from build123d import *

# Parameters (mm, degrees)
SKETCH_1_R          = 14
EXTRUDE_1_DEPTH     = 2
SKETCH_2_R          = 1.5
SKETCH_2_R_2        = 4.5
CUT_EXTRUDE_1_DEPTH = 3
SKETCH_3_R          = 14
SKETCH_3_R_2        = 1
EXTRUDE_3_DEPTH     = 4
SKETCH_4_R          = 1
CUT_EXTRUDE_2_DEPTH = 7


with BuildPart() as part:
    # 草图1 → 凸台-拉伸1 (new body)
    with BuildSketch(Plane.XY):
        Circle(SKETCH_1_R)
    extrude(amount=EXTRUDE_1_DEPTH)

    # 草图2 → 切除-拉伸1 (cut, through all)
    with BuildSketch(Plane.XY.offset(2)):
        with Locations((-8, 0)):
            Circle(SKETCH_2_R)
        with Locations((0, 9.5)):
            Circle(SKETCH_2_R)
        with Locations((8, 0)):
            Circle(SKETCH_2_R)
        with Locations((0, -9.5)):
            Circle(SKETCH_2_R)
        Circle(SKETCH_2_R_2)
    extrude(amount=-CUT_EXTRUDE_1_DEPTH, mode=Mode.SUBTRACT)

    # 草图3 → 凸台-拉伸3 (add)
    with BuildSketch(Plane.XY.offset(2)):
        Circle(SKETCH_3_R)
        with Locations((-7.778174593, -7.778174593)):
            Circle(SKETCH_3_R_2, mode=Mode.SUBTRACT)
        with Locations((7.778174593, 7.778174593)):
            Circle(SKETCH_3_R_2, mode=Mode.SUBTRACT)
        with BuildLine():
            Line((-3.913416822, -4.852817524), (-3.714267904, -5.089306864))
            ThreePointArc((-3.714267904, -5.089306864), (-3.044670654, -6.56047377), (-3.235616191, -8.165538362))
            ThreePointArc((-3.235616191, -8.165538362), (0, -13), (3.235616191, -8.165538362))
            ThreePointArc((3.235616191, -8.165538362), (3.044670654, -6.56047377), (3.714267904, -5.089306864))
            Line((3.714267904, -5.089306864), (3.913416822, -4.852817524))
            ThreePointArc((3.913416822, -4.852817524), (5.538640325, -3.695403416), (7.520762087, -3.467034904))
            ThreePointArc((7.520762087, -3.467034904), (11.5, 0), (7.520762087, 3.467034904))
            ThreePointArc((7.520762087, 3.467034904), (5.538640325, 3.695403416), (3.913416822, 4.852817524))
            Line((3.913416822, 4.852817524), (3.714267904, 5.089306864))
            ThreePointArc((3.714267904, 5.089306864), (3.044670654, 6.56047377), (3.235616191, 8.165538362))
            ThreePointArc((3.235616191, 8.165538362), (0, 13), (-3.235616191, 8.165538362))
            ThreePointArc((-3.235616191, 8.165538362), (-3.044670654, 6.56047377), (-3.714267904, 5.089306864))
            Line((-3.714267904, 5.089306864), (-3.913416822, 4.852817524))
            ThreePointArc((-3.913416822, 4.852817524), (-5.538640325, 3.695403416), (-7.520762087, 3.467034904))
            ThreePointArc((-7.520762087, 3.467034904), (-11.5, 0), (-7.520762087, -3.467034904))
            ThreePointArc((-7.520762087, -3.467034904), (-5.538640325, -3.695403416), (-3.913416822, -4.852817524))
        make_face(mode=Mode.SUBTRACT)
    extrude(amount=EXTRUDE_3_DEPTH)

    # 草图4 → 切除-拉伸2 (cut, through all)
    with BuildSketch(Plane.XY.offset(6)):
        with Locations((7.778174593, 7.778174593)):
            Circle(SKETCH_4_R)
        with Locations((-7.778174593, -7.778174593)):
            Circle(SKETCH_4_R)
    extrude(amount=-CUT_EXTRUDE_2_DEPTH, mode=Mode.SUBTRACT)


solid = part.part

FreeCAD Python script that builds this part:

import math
import FreeCAD as App
import Part
import Sketcher

doc = App.newDocument("Part")
body = doc.addObject("PartDesign::Body", "Body")

# Sketch on XY plane
sketch1 = body.newObject("Sketcher::SketchObject", "Sketch")
sketch1.AttachmentSupport = (doc.getObject("XY_Plane"), [""])
sketch1.MapMode = "FlatFace"
sketch1.addGeometry(Part.Circle(App.Vector(0, 0, 0), App.Vector(0, 0, 1), 14), False)
sketch1.addConstraint(Sketcher.Constraint("Coincident", 0, 3, -1, 1))
sketch1.addConstraint(Sketcher.Constraint("Diameter", 0, 28.0))
pad1 = body.newObject("PartDesign::Pad", "Pad")
pad1.Profile = sketch1
pad1.Length = 2

# Sketch on XY plane
sketch2 = body.newObject("Sketcher::SketchObject", "Sketch001")
sketch2.AttachmentSupport = (doc.getObject("XY_Plane"), [""])
sketch2.MapMode = "FlatFace"
sketch2.AttachmentOffset = App.Placement(App.Vector(0, 0, 2), App.Rotation())
sketch2.addGeometry(Part.Circle(App.Vector(-8, 0, 0), App.Vector(0, 0, 1), 1.5), False)
sketch2.addGeometry(Part.Circle(App.Vector(0, 9.5, 0), App.Vector(0, 0, 1), 1.5), False)
sketch2.addGeometry(Part.Circle(App.Vector(8, 0, 0), App.Vector(0, 0, 1), 1.5), False)
sketch2.addGeometry(Part.Circle(App.Vector(0, -9.5, 0), App.Vector(0, 0, 1), 1.5), False)
sketch2.addGeometry(Part.Circle(App.Vector(0, 0, 0), App.Vector(0, 0, 1), 4.5), False)
sketch2.addConstraint(Sketcher.Constraint("Coincident", 4, 3, -1, 1))
sketch2.addConstraint(Sketcher.Constraint("Equal", 0, 1))
sketch2.addConstraint(Sketcher.Constraint("Equal", 1, 2))
sketch2.addConstraint(Sketcher.Constraint("Equal", 2, 3))
sketch2.addConstraint(Sketcher.Constraint("Symmetric", 0, 3, 2, 3, -1, 1))
sketch2.addConstraint(Sketcher.Constraint("Symmetric", 1, 3, 3, 3, -1, 1))
sketch2.addConstraint(Sketcher.Constraint("PointOnObject", 0, 3, -1))
sketch2.addConstraint(Sketcher.Constraint("PointOnObject", 1, 3, -2))
sketch2.addConstraint(Sketcher.Constraint("Diameter", 0, 3.0))
sketch2.addConstraint(Sketcher.Constraint("Diameter", 4, 9.0))
sketch2.addConstraint(Sketcher.Constraint("DistanceX", 0, 3, -1, 1, 8.0))
sketch2.addConstraint(Sketcher.Constraint("DistanceY", 3, 3, 1, 3, 19.0))
pocket1 = body.newObject("PartDesign::Pocket", "Pocket")
pocket1.Profile = sketch2
pocket1.Type = "ThroughAll"

# Sketch on XY plane
sketch3 = body.newObject("Sketcher::SketchObject", "Sketch002")
sketch3.AttachmentSupport = (doc.getObject("XY_Plane"), [""])
sketch3.MapMode = "FlatFace"
sketch3.AttachmentOffset = App.Placement(App.Vector(0, 0, 2), App.Rotation())
sketch3.addGeometry(Part.Circle(App.Vector(0, 0, 0), App.Vector(0, 0, 1), 14), False)
sketch3.addGeometry(Part.Circle(App.Vector(-7.778175, -7.778175, 0), App.Vector(0, 0, 1), 1), False)
sketch3.addGeometry(Part.LineSegment(App.Vector(-3.714268, -5.089307, 0), App.Vector(-3.913417, -4.852818, 0)), False)
sketch3.addGeometry(Part.ArcOfCircle(Part.Circle(App.Vector(-6.973062, -7.429361, 0), App.Vector(0, 0, 1), 4), math.radians(40.100908), math.radians(97.869955)), False)
sketch3.addGeometry(Part.ArcOfCircle(Part.Circle(App.Vector(-8, 0, 0), App.Vector(0, 0, 1), 3.5), math.radians(82.130045), math.radians(277.869955)), False)
sketch3.addGeometry(Part.ArcOfCircle(Part.Circle(App.Vector(-6.973062, 7.429361, 0), App.Vector(0, 0, 1), 4), math.radians(-97.869955), math.radians(-40.100908)), False)
sketch3.addGeometry(Part.LineSegment(App.Vector(-3.913417, 4.852818, 0), App.Vector(-3.714268, 5.089307, 0)), False)
sketch3.addGeometry(Part.ArcOfCircle(Part.Circle(App.Vector(-6.009002, 7.021714, 0), App.Vector(0, 0, 1), 3), math.radians(-40.100908), math.radians(22.412666)), False)
sketch3.addGeometry(Part.ArcOfCircle(Part.Circle(App.Vector(0, 9.5, 0), App.Vector(0, 0, 1), 3.5), math.radians(-22.412666), math.radians(202.412666)), False)
sketch3.addGeometry(Part.ArcOfCircle(Part.Circle(App.Vector(6.009002, 7.021714, 0), App.Vector(0, 0, 1), 3), math.radians(157.587334), math.radians(220.100908)), False)
sketch3.addGeometry(Part.LineSegment(App.Vector(3.714268, 5.089307, 0), App.Vector(3.913417, 4.852818, 0)), False)
sketch3.addGeometry(Part.ArcOfCircle(Part.Circle(App.Vector(6.973062, 7.429361, 0), App.Vector(0, 0, 1), 4), math.radians(-139.899092), math.radians(-82.130045)), False)
sketch3.addGeometry(Part.ArcOfCircle(Part.Circle(App.Vector(8, 0, 0), App.Vector(0, 0, 1), 3.5), math.radians(-97.869955), math.radians(97.869955)), False)
sketch3.addGeometry(Part.ArcOfCircle(Part.Circle(App.Vector(6.973062, -7.429361, 0), App.Vector(0, 0, 1), 4), math.radians(82.130045), math.radians(139.899092)), False)
sketch3.addGeometry(Part.LineSegment(App.Vector(3.913417, -4.852818, 0), App.Vector(3.714268, -5.089307, 0)), False)
sketch3.addGeometry(Part.ArcOfCircle(Part.Circle(App.Vector(6.009002, -7.021714, 0), App.Vector(0, 0, 1), 3), math.radians(139.899092), math.radians(202.412666)), False)
sketch3.addGeometry(Part.ArcOfCircle(Part.Circle(App.Vector(0, -9.5, 0), App.Vector(0, 0, 1), 3.5), math.radians(157.587334), math.radians(382.412666)), False)
sketch3.addGeometry(Part.ArcOfCircle(Part.Circle(App.Vector(-6.009002, -7.021714, 0), App.Vector(0, 0, 1), 3), math.radians(-22.412666), math.radians(40.100908)), False)
sketch3.addGeometry(Part.Circle(App.Vector(7.778175, 7.778175, 0), App.Vector(0, 0, 1), 1), False)
sketch3.addConstraint(Sketcher.Constraint("Tangent", 2, 2, 3, 1))
sketch3.addConstraint(Sketcher.Constraint("Tangent", 3, 2, 4, 2))
sketch3.addConstraint(Sketcher.Constraint("Tangent", 4, 1, 5, 1))
sketch3.addConstraint(Sketcher.Constraint("Tangent", 5, 2, 6, 1))
sketch3.addConstraint(Sketcher.Constraint("Tangent", 6, 2, 7, 1))
sketch3.addConstraint(Sketcher.Constraint("Tangent", 7, 2, 8, 2))
sketch3.addConstraint(Sketcher.Constraint("Tangent", 8, 1, 9, 1))
sketch3.addConstraint(Sketcher.Constraint("Tangent", 9, 2, 10, 1))
sketch3.addConstraint(Sketcher.Constraint("Tangent", 10, 2, 11, 1))
sketch3.addConstraint(Sketcher.Constraint("Tangent", 11, 2, 12, 2))
sketch3.addConstraint(Sketcher.Constraint("Tangent", 12, 1, 13, 1))
sketch3.addConstraint(Sketcher.Constraint("Tangent", 13, 2, 14, 1))
sketch3.addConstraint(Sketcher.Constraint("Tangent", 14, 2, 15, 1))
sketch3.addConstraint(Sketcher.Constraint("Tangent", 15, 2, 16, 2))
sketch3.addConstraint(Sketcher.Constraint("Tangent", 16, 1, 17, 1))
sketch3.addConstraint(Sketcher.Constraint("Tangent", 17, 2, 2, 1))
sketch3.addConstraint(Sketcher.Constraint("Coincident", 0, 3, -1, 1))
sketch3.addConstraint(Sketcher.Constraint("Equal", 3, 5))
sketch3.addConstraint(Sketcher.Constraint("Equal", 4, 8))
sketch3.addConstraint(Sketcher.Constraint("Equal", 7, 9))
sketch3.addConstraint(Sketcher.Constraint("Equal", 5, 11))
sketch3.addConstraint(Sketcher.Constraint("Equal", 8, 12))
sketch3.addConstraint(Sketcher.Constraint("Equal", 11, 13))
sketch3.addConstraint(Sketcher.Constraint("Equal", 9, 15))
sketch3.addConstraint(Sketcher.Constraint("Equal", 12, 16))
sketch3.addConstraint(Sketcher.Constraint("Equal", 15, 17))
sketch3.addConstraint(Sketcher.Constraint("Equal", 1, 18))
sketch3.addConstraint(Sketcher.Constraint("Symmetric", 3, 3, 11, 3, -1, 1))
sketch3.addConstraint(Sketcher.Constraint("Symmetric", 5, 3, 13, 3, -1, 1))
sketch3.addConstraint(Sketcher.Constraint("Symmetric", 7, 3, 15, 3, -1, 1))
sketch3.addConstraint(Sketcher.Constraint("Symmetric", 9, 3, 17, 3, -1, 1))
sketch3.addConstraint(Sketcher.Constraint("Symmetric", 1, 3, 18, 3, -1, 1))
sketch3.addConstraint(Sketcher.Constraint("Symmetric", 7, 3, 9, 3, -2))
sketch3.addConstraint(Sketcher.Constraint("Symmetric", 5, 3, 11, 3, -2))
sketch3.addConstraint(Sketcher.Constraint("Diameter", 0, 28.0))
sketch3.addConstraint(Sketcher.Constraint("Diameter", 1, 2.0))
sketch3.addConstraint(Sketcher.Constraint("Radius", 3, 4.0))
sketch3.addConstraint(Sketcher.Constraint("Radius", 7, 3.0))
sketch3.addConstraint(Sketcher.Constraint("Radius", 4, 3.5))
sketch3.addConstraint(Sketcher.Constraint("DistanceX", 4, 3, -1, 1, 8.0))
sketch3.addConstraint(Sketcher.Constraint("DistanceY", -1, 1, 8, 3, 9.5))
sketch3.addConstraint(Sketcher.Constraint("DistanceX", 7, 3, -1, 1, 6.009002))
sketch3.addConstraint(Sketcher.Constraint("DistanceX", 3, 2, 3, 3, 0.5477))
sketch3.addConstraint(Sketcher.Constraint("DistanceY", 1, 3, 7, 3, 14.799889))
sketch3.addConstraint(Sketcher.Constraint("DistanceX", 8, 1, 18, 3, 4.542558))
pad2 = body.newObject("PartDesign::Pad", "Pad001")
pad2.Profile = sketch3
pad2.Length = 4

# Sketch on XY plane
sketch4 = body.newObject("Sketcher::SketchObject", "Sketch003")
sketch4.AttachmentSupport = (doc.getObject("XY_Plane"), [""])
sketch4.MapMode = "FlatFace"
sketch4.AttachmentOffset = App.Placement(App.Vector(0, 0, 6), App.Rotation())
sketch4.addGeometry(Part.Circle(App.Vector(7.778175, 7.778175, 0), App.Vector(0, 0, 1), 1), False)
sketch4.addGeometry(Part.Circle(App.Vector(-7.778175, -7.778175, 0), App.Vector(0, 0, 1), 1), False)
sketch4.addConstraint(Sketcher.Constraint("Equal", 0, 1))
sketch4.addConstraint(Sketcher.Constraint("Symmetric", 0, 3, 1, 3, -1, 1))
sketch4.addConstraint(Sketcher.Constraint("Diameter", 0, 2.0))
sketch4.addConstraint(Sketcher.Constraint("DistanceX", 1, 3, 0, 3, 15.556349))
sketch4.addConstraint(Sketcher.Constraint("DistanceY", 1, 3, 0, 3, 15.556349))
pocket2 = body.newObject("PartDesign::Pocket", "Pocket001")
pocket2.Profile = sketch4
pocket2.Type = "ThroughAll"

doc.recompute()
